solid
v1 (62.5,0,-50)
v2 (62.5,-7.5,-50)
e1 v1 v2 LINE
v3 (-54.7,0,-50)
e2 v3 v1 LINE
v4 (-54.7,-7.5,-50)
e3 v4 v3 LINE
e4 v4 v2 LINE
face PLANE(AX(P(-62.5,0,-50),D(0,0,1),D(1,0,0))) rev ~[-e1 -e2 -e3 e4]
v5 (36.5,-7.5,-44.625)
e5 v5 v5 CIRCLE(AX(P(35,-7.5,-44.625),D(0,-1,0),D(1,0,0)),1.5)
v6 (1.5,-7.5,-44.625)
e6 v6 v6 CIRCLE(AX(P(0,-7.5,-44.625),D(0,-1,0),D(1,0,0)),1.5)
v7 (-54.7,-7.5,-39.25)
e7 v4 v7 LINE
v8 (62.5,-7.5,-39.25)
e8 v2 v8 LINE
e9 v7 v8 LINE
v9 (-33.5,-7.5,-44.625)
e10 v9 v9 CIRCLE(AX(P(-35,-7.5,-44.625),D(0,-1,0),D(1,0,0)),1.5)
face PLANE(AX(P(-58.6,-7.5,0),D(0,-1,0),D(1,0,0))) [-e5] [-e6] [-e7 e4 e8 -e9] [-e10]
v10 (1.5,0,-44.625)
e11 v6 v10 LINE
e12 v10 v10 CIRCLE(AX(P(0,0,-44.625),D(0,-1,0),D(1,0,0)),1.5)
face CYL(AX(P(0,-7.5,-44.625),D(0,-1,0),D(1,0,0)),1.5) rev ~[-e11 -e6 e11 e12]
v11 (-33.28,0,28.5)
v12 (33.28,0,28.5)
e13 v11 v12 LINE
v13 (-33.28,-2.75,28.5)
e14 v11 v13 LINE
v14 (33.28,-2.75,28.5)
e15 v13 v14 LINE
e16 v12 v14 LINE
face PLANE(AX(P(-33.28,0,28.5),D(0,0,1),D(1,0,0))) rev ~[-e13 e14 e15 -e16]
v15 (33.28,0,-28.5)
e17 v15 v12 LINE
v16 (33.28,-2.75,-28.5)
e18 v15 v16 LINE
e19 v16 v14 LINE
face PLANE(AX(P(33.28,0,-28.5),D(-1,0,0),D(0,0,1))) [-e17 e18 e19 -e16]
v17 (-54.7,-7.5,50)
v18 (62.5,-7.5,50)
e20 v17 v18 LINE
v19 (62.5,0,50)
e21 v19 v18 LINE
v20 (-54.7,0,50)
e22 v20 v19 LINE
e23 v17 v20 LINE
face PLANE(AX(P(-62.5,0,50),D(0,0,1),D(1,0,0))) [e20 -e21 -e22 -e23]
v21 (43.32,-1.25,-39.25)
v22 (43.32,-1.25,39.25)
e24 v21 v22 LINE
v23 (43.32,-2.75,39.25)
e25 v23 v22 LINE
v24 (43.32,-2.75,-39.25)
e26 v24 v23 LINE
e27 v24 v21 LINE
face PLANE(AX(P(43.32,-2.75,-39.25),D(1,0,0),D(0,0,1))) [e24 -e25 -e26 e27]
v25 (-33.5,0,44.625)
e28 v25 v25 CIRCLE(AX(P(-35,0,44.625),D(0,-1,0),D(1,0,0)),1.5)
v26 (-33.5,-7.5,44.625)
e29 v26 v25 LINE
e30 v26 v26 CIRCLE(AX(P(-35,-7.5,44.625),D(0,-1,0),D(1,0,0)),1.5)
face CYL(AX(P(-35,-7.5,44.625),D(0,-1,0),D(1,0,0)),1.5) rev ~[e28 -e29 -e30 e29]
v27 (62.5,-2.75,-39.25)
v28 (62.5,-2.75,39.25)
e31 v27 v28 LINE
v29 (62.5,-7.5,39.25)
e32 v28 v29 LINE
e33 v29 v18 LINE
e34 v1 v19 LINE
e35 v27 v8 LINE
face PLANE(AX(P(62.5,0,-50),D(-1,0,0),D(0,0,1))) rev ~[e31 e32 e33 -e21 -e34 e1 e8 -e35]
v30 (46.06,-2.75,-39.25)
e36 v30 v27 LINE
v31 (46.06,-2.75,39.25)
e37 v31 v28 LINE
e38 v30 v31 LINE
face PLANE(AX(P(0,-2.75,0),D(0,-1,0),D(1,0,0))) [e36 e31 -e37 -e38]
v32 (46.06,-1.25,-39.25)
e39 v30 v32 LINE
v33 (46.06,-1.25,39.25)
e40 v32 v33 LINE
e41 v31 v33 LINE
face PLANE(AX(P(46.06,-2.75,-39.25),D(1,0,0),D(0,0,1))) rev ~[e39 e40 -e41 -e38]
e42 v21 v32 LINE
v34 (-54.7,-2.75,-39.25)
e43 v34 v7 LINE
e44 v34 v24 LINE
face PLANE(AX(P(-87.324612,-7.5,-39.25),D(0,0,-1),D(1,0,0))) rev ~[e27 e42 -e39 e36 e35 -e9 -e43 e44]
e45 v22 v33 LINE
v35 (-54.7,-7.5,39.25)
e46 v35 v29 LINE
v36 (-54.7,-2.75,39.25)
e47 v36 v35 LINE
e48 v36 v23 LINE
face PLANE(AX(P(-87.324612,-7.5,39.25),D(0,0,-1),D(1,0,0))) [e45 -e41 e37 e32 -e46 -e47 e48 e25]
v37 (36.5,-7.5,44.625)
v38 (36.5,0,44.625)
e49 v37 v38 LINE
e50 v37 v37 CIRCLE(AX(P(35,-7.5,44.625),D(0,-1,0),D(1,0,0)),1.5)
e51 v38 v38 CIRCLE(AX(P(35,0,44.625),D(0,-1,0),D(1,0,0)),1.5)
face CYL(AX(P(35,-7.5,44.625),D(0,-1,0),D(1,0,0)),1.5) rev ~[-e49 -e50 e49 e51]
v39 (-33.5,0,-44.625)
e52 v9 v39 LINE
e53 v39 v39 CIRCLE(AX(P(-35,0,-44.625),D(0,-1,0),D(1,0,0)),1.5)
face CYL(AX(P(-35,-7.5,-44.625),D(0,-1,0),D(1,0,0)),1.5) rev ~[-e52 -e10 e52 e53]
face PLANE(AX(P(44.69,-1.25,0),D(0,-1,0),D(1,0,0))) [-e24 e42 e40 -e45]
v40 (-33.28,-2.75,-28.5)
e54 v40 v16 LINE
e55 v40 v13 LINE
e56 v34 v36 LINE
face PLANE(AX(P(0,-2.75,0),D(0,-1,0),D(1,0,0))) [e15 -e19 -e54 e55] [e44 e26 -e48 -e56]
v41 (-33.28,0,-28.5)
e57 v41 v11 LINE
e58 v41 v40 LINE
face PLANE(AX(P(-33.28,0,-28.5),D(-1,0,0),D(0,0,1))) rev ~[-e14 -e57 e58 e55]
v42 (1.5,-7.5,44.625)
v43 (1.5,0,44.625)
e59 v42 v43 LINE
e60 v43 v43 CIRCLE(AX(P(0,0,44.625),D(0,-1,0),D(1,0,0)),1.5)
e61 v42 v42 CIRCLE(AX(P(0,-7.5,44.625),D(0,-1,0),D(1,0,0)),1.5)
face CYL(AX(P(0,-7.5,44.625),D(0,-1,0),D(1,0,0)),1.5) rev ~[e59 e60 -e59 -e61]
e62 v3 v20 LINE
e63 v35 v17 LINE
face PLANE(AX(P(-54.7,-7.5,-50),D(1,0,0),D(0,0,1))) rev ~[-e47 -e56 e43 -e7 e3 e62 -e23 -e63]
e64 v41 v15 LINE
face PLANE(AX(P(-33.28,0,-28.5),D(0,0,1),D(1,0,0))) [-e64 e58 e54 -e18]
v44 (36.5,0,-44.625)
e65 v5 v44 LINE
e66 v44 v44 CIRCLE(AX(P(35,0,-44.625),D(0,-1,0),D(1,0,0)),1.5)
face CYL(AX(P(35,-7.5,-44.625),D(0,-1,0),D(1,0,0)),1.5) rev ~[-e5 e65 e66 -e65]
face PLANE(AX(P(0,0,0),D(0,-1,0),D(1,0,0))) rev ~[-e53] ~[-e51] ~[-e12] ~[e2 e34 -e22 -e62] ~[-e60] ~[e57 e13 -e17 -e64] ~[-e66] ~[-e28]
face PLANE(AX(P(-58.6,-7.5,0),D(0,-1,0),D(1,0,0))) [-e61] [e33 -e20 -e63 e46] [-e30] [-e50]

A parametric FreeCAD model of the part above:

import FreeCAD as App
import Part
import Sketcher

doc = App.newDocument("Part")
params = doc.addObject("Spreadsheet::Sheet", "Params")
for row, (alias, value) in enumerate([
    ("sketch1_width", "125 mm"),
    ("sketch1_height", "100 mm"),
    ("sketch1_height2", "57 mm"),
    ("sketch1_width2", "66.56 mm"),
    ("pad1_length", "7.5 mm"),
    ("sketch2_height", "78.5 mm"),
    ("pocket1_length", "4.75 mm"),
    ("sketch3_height", "78.5 mm"),
    ("sketch3_width", "2.74 mm"),
    ("pocket2_length", "1.5 mm"),
    ("sketch4_width", "7.8 mm"),
    ("sketch4_height", "78.5 mm"),
    ("pad2_length", "4.75 mm"),
    ("sketch5_height", "100 mm"),
    ("sketch5_width", "7.8 mm"),
    ("pocket3_length", "25 mm"),
    ("sketch6_diameter", "3 mm"),
    ("pocket4_length", "25 mm"),
    ("sketch7_diameter", "3 mm"),
    ("pocket5_length", "25 mm"),
], start=1):
    params.set(f"A{row}", alias)
    params.set(f"B{row}", "=" + value)
    params.setAlias(f"B{row}", alias)

body = doc.addObject("PartDesign::Body", "Body")

# Sketch on XZ plane
sketch1 = body.newObject("Sketcher::SketchObject", "Sketch")
sketch1.AttachmentSupport = (doc.getObject("XZ_Plane"), [""])
sketch1.MapMode = "FlatFace"
sketch1.addGeometry(Part.LineSegment(App.Vector(-62.5, 50, 0), App.Vector(-62.5, -50, 0)), False)
sketch1.addGeometry(Part.LineSegment(App.Vector(-62.5, -50, 0), App.Vector(62.5, -50, 0)), False)
sketch1.addGeometry(Part.LineSegment(App.Vector(62.5, -50, 0), App.Vector(62.5, 50, 0)), False)
sketch1.addGeometry(Part.LineSegment(App.Vector(62.5, 50, 0), App.Vector(-62.5, 50, 0)), False)
sketch1.addGeometry(Part.LineSegment(App.Vector(33.28, -28.5, 0), App.Vector(-33.28, -28.5, 0)), False)
sketch1.addGeometry(Part.LineSegment(App.Vector(-33.28, -28.5, 0), App.Vector(-33.28, 28.5, 0)), False)
sketch1.addGeometry(Part.LineSegment(App.Vector(-33.28, 28.5, 0), App.Vector(33.28, 28.5, 0)), False)
sketch1.addGeometry(Part.LineSegment(App.Vector(33.28, 28.5, 0), App.Vector(33.28, -28.5, 0)), False)
sketch1.addConstraint(Sketcher.Constraint("Coincident", 0, 2, 1, 1))
sketch1.addConstraint(Sketcher.Constraint("Coincident", 1, 2, 2, 1))
sketch1.addConstraint(Sketcher.Constraint("Coincident", 2, 2, 3, 1))
sketch1.addConstraint(Sketcher.Constraint("Coincident", 3, 2, 0, 1))
sketch1.addConstraint(Sketcher.Constraint("Coincident", 4, 2, 5, 1))
sketch1.addConstraint(Sketcher.Constraint("Coincident", 5, 2, 6, 1))
sketch1.addConstraint(Sketcher.Constraint("Coincident", 6, 2, 7, 1))
sketch1.addConstraint(Sketcher.Constraint("Coincident", 7, 2, 4, 1))
sketch1.addConstraint(Sketcher.Constraint("Vertical", 0))
sketch1.addConstraint(Sketcher.Constraint("Horizontal", 1))
sketch1.addConstraint(Sketcher.Constraint("Vertical", 2))
sketch1.addConstraint(Sketcher.Constraint("Horizontal", 3))
sketch1.addConstraint(Sketcher.Constraint("Horizontal", 4))
sketch1.addConstraint(Sketcher.Constraint("Vertical", 5))
sketch1.addConstraint(Sketcher.Constraint("Horizontal", 6))
sketch1.addConstraint(Sketcher.Constraint("Vertical", 7))
sketch1.addConstraint(Sketcher.Constraint("Symmetric", 0, 2, 2, 2, -1, 1))
sketch1.addConstraint(Sketcher.Constraint("Symmetric", 4, 2, 6, 2, -1, 1))
sketch1.addConstraint(Sketcher.Constraint("DistanceX", 1, 1, 1, 2, 125.0))
sketch1.addConstraint(Sketcher.Constraint("DistanceY", 0, 2, 0, 1, 100.0))
sketch1.addConstraint(Sketcher.Constraint("DistanceY", 5, 1, 5, 2, 57.0))
sketch1.addConstraint(Sketcher.Constraint("DistanceX", 4, 2, 4, 1, 66.56))
sketch1.setExpression("Constraints[18]", "Params.sketch1_width")
sketch1.setExpression("Constraints[19]", "Params.sketch1_height")
sketch1.setExpression("Constraints[20]", "Params.sketch1_height2")
sketch1.setExpression("Constraints[21]", "Params.sketch1_width2")
pad1 = body.newObject("PartDesign::Pad", "Pad")
pad1.Profile = sketch1
pad1.setExpression("Length", "Params.pad1_length")

# Sketch on XZ plane
sketch2 = body.newObject("Sketcher::SketchObject", "Sketch001")
sketch2.AttachmentSupport = (doc.getObject("XZ_Plane"), [""])
sketch2.MapMode = "FlatFace"
sketch2.AttachmentOffset = App.Placement(App.Vector(0, 0, 7.5), App.Rotation())
sketch2.addGeometry(Part.LineSegment(App.Vector(-87.324612, 39.25, 0), App.Vector(-87.324612, -39.25, 0)), False)
sketch2.addGeometry(Part.LineSegment(App.Vector(-87.324612, -39.25, 0), App.Vector(87.324612, -39.25, 0)), False)
sketch2.addGeometry(Part.LineSegment(App.Vector(87.324612, -39.25, 0), App.Vector(87.324612, 39.25, 0)), False)
sketch2.addGeometry(Part.LineSegment(App.Vector(87.324612, 39.25, 0), App.Vector(-87.324612, 39.25, 0)), False)
sketch2.addConstraint(Sketcher.Constraint("Coincident", 0, 2, 1, 1))
sketch2.addConstraint(Sketcher.Constraint("Coincident", 1, 2, 2, 1))
sketch2.addConstraint(Sketcher.Constraint("Coincident", 2, 2, 3, 1))
sketch2.addConstraint(Sketcher.Constraint("Coincident", 3, 2, 0, 1))
sketch2.addConstraint(Sketcher.Constraint("Vertical", 0))
sketch2.addConstraint(Sketcher.Constraint("Horizontal", 1))
sketch2.addConstraint(Sketcher.Constraint("Vertical", 2))
sketch2.addConstraint(Sketcher.Constraint("Horizontal", 3))
sketch2.addConstraint(Sketcher.Constraint("Symmetric", 0, 2, 2, 2, -1, 1))
sketch2.addConstraint(Sketcher.Constraint("DistanceY", 0, 2, 0, 1, 78.5))
sketch2.addConstraint(Sketcher.Constraint("DistanceX", 1, 1, 1, 2, 174.649224))
sketch2.setExpression("Constraints[9]", "Params.sketch2_height")
pocket1 = body.newObject("PartDesign::Pocket", "Pocket")
pocket1.Profile = sketch2
pocket1.setExpression("Length", "Params.pocket1_length")

# Sketch on XZ plane
sketch3 = body.newObject("Sketcher::SketchObject", "Sketch002")
sketch3.AttachmentSupport = (doc.getObject("XZ_Plane"), [""])
sketch3.MapMode = "FlatFace"
sketch3.AttachmentOffset = App.Placement(App.Vector(0, 0, 2.75), App.Rotation())
sketch3.addGeometry(Part.LineSegment(App.Vector(43.32, 39.25, 0), App.Vector(43.32, -39.25, 0)), False)
sketch3.addGeometry(Part.LineSegment(App.Vector(43.32, -39.25, 0), App.Vector(46.06, -39.25, 0)), False)
sketch3.addGeometry(Part.LineSegment(App.Vector(46.06, -39.25, 0), App.Vector(46.06, 39.25, 0)), False)
sketch3.addGeometry(Part.LineSegment(App.Vector(46.06, 39.25, 0), App.Vector(43.32, 39.25, 0)), False)
sketch3.addConstraint(Sketcher.Constraint("Coincident", 0, 2, 1, 1))
sketch3.addConstraint(Sketcher.Constraint("Coincident", 1, 2, 2, 1))
sketch3.addConstraint(Sketcher.Constraint("Coincident", 2, 2, 3, 1))
sketch3.addConstraint(Sketcher.Constraint("Coincident", 3, 2, 0, 1))
sketch3.addConstraint(Sketcher.Constraint("Vertical", 0))
sketch3.addConstraint(Sketcher.Constraint("Horizontal", 1))
sketch3.addConstraint(Sketcher.Constraint("Vertical", 2))
sketch3.addConstraint(Sketcher.Constraint("Horizontal", 3))
sketch3.addConstraint(Sketcher.Constraint("DistanceY", 0, 2, 0, 1, 78.5))
sketch3.addConstraint(Sketcher.Constraint("DistanceX", 1, 1, 1, 2, 2.74))
sketch3.addConstraint(Sketcher.Constraint("DistanceX", -1, 1, 0, 2, 43.32))
sketch3.addConstraint(Sketcher.Constraint("DistanceY", 0, 2, -1, 1, 39.25))
sketch3.setExpression("Constraints[8]", "Params.sketch3_height")
sketch3.setExpression("Constraints[9]", "Params.sketch3_width")
pocket2 = body.newObject("PartDesign::Pocket", "Pocket001")
pocket2.Profile = sketch3
pocket2.setExpression("Length", "Params.pocket2_length")

# Sketch on XZ plane
sketch4 = body.newObject("Sketcher::SketchObject", "Sketch003")
sketch4.AttachmentSupport = (doc.getObject("XZ_Plane"), [""])
sketch4.MapMode = "FlatFace"
sketch4.AttachmentOffset = App.Placement(App.Vector(0, 0, 2.75), App.Rotation())
sketch4.addGeometry(Part.LineSegment(App.Vector(-62.5, 39.25, 0), App.Vector(-62.5, -39.25, 0)), False)
sketch4.addGeometry(Part.LineSegment(App.Vector(-62.5, -39.25, 0), App.Vector(-54.7, -39.25, 0)), False)
sketch4.addGeometry(Part.LineSegment(App.Vector(-54.7, -39.25, 0), App.Vector(-54.7, 39.25, 0)), False)
sketch4.addGeometry(Part.LineSegment(App.Vector(-54.7, 39.25, 0), App.Vector(-62.5, 39.25, 0)), False)
sketch4.addConstraint(Sketcher.Constraint("Coincident", 0, 2, 1, 1))
sketch4.addConstraint(Sketcher.Constraint("Coincident", 1, 2, 2, 1))
sketch4.addConstraint(Sketcher.Constraint("Coincident", 2, 2, 3, 1))
sketch4.addConstraint(Sketcher.Constraint("Coincident", 3, 2, 0, 1))
sketch4.addConstraint(Sketcher.Constraint("Vertical", 0))
sketch4.addConstraint(Sketcher.Constraint("Horizontal", 1))
sketch4.addConstraint(Sketcher.Constraint("Vertical", 2))
sketch4.addConstraint(Sketcher.Constraint("Horizontal", 3))
sketch4.addConstraint(Sketcher.Constraint("DistanceX", 1, 1, 1, 2, 7.8))
sketch4.addConstraint(Sketcher.Constraint("DistanceY", 0, 2, 0, 1, 78.5))
sketch4.addConstraint(Sketcher.Constraint("DistanceX", 0, 2, -1, 1, 62.5))
sketch4.addConstraint(Sketcher.Constraint("DistanceY", 0, 2, -1, 1, 39.25))
sketch4.setExpression("Constraints[8]", "Params.sketch4_width")
sketch4.setExpression("Constraints[9]", "Params.sketch4_height")
pad2 = body.newObject("PartDesign::Pad", "Pad001")
pad2.Profile = sketch4
pad2.setExpression("Length", "Params.pad2_length")

# Sketch on XZ plane
sketch5 = body.newObject("Sketcher::SketchObject", "Sketch004")
sketch5.AttachmentSupport = (doc.getObject("XZ_Plane"), [""])
sketch5.MapMode = "FlatFace"
sketch5.AttachmentOffset = App.Placement(App.Vector(0, 0, 7.5), App.Rotation())
sketch5.addGeometry(Part.LineSegment(App.Vector(-62.5, 50, 0), App.Vector(-62.5, -50, 0)), False)
sketch5.addGeometry(Part.LineSegment(App.Vector(-62.5, -50, 0), App.Vector(-54.7, -50, 0)), False)
sketch5.addGeometry(Part.LineSegment(App.Vector(-54.7, -50, 0), App.Vector(-54.7, 50, 0)), False)
sketch5.addGeometry(Part.LineSegment(App.Vector(-54.7, 50, 0), App.Vector(-62.5, 50, 0)), False)
sketch5.addConstraint(Sketcher.Constraint("Coincident", 0, 2, 1, 1))
sketch5.addConstraint(Sketcher.Constraint("Coincident", 1, 2, 2, 1))
sketch5.addConstraint(Sketcher.Constraint("Coincident", 2, 2, 3, 1))
sketch5.addConstraint(Sketcher.Constraint("Coincident", 3, 2, 0, 1))
sketch5.addConstraint(Sketcher.Constraint("Vertical", 0))
sketch5.addConstraint(Sketcher.Constraint("Horizontal", 1))
sketch5.addConstraint(Sketcher.Constraint("Vertical", 2))
sketch5.addConstraint(Sketcher.Constraint("Horizontal", 3))
sketch5.addConstraint(Sketcher.Constraint("DistanceY", 0, 2, 0, 1, 100.0))
sketch5.addConstraint(Sketcher.Constraint("DistanceX", 1, 1, 1, 2, 7.8))
sketch5.addConstraint(Sketcher.Constraint("DistanceY", 0, 2, -1, 1, 50.0))
sketch5.addConstraint(Sketcher.Constraint("DistanceX", 0, 2, -1, 1, 62.5))
sketch5.setExpression("Constraints[8]", "Params.sketch5_height")
sketch5.setExpression("Constraints[9]", "Params.sketch5_width")
pocket3 = body.newObject("PartDesign::Pocket", "Pocket002")
pocket3.Profile = sketch5
pocket3.setExpression("Length", "Params.pocket3_length")

# Sketch on XZ plane
sketch6 = body.newObject("Sketcher::SketchObject", "Sketch005")
sketch6.AttachmentSupport = (doc.getObject("XZ_Plane"), [""])
sketch6.MapMode = "FlatFace"
sketch6.AttachmentOffset = App.Placement(App.Vector(0, 0, 7.5), App.Rotation())
sketch6.addGeometry(Part.Circle(App.Vector(0, 44.625, 0), App.Vector(0, 0, 1), 1.5), False)
sketch6.addGeometry(Part.Circle(App.Vector(-35, 44.625, 0), App.Vector(0, 0, 1), 1.5), False)
sketch6.addGeometry(Part.Circle(App.Vector(35, 44.625, 0), App.Vector(0, 0, 1), 1.5), False)
sketch6.addConstraint(Sketcher.Constraint("Equal", 0, 1))
sketch6.addConstraint(Sketcher.Constraint("Equal", 1, 2))
sketch6.addConstraint(Sketcher.Constraint("Symmetric", 1, 3, 2, 3, -2))
sketch6.addConstraint(Sketcher.Constraint("PointOnObject", 0, 3, -2))
sketch6.addConstraint(Sketcher.Constraint("Horizontal", 0, 3, 1, 3))
sketch6.addConstraint(Sketcher.Constraint("Diameter", 0, 3.0))
sketch6.addConstraint(Sketcher.Constraint("DistanceX", 1, 3, -1, 1, 35.0))
sketch6.addConstraint(Sketcher.Constraint("DistanceY", -1, 1, 0, 3, 44.625))
sketch6.setExpression("Constraints[5]", "Params.sketch6_diameter")
pocket4 = body.newObject("PartDesign::Pocket", "Pocket003")
pocket4.Profile = sketch6
pocket4.setExpression("Length", "Params.pocket4_length")

# Sketch on XZ plane
sketch7 = body.newObject("Sketcher::SketchObject", "Sketch006")
sketch7.AttachmentSupport = (doc.getObject("XZ_Plane"), [""])
sketch7.MapMode = "FlatFace"
sketch7.AttachmentOffset = App.Placement(App.Vector(0, 0, 7.5), App.Rotation())
sketch7.addGeometry(Part.Circle(App.Vector(0, -44.625, 0), App.Vector(0, 0, 1), 1.5), False)
sketch7.addGeometry(Part.Circle(App.Vector(35, -44.625, 0), App.Vector(0, 0, 1), 1.5), False)
sketch7.addGeometry(Part.Circle(App.Vector(-35, -44.625, 0), App.Vector(0, 0, 1), 1.5), False)
sketch7.addConstraint(Sketcher.Constraint("Equal", 0, 1))
sketch7.addConstraint(Sketcher.Constraint("Equal", 1, 2))
sketch7.addConstraint(Sketcher.Constraint("Symmetric", 1, 3, 2, 3, -2))
sketch7.addConstraint(Sketcher.Constraint("PointOnObject", 0, 3, -2))
sketch7.addConstraint(Sketcher.Constraint("Horizontal", 0, 3, 1, 3))
sketch7.addConstraint(Sketcher.Constraint("Diameter", 0, 3.0))
sketch7.addConstraint(Sketcher.Constraint("DistanceX", -1, 1, 1, 3, 35.0))
sketch7.addConstraint(Sketcher.Constraint("DistanceY", 0, 3, -1, 1, 44.625))
sketch7.setExpression("Constraints[5]", "Params.sketch7_diameter")
pocket5 = body.newObject("PartDesign::Pocket", "Pocket004")
pocket5.Profile = sketch7
pocket5.setExpression("Length", "Params.pocket5_length")

doc.recompute()
